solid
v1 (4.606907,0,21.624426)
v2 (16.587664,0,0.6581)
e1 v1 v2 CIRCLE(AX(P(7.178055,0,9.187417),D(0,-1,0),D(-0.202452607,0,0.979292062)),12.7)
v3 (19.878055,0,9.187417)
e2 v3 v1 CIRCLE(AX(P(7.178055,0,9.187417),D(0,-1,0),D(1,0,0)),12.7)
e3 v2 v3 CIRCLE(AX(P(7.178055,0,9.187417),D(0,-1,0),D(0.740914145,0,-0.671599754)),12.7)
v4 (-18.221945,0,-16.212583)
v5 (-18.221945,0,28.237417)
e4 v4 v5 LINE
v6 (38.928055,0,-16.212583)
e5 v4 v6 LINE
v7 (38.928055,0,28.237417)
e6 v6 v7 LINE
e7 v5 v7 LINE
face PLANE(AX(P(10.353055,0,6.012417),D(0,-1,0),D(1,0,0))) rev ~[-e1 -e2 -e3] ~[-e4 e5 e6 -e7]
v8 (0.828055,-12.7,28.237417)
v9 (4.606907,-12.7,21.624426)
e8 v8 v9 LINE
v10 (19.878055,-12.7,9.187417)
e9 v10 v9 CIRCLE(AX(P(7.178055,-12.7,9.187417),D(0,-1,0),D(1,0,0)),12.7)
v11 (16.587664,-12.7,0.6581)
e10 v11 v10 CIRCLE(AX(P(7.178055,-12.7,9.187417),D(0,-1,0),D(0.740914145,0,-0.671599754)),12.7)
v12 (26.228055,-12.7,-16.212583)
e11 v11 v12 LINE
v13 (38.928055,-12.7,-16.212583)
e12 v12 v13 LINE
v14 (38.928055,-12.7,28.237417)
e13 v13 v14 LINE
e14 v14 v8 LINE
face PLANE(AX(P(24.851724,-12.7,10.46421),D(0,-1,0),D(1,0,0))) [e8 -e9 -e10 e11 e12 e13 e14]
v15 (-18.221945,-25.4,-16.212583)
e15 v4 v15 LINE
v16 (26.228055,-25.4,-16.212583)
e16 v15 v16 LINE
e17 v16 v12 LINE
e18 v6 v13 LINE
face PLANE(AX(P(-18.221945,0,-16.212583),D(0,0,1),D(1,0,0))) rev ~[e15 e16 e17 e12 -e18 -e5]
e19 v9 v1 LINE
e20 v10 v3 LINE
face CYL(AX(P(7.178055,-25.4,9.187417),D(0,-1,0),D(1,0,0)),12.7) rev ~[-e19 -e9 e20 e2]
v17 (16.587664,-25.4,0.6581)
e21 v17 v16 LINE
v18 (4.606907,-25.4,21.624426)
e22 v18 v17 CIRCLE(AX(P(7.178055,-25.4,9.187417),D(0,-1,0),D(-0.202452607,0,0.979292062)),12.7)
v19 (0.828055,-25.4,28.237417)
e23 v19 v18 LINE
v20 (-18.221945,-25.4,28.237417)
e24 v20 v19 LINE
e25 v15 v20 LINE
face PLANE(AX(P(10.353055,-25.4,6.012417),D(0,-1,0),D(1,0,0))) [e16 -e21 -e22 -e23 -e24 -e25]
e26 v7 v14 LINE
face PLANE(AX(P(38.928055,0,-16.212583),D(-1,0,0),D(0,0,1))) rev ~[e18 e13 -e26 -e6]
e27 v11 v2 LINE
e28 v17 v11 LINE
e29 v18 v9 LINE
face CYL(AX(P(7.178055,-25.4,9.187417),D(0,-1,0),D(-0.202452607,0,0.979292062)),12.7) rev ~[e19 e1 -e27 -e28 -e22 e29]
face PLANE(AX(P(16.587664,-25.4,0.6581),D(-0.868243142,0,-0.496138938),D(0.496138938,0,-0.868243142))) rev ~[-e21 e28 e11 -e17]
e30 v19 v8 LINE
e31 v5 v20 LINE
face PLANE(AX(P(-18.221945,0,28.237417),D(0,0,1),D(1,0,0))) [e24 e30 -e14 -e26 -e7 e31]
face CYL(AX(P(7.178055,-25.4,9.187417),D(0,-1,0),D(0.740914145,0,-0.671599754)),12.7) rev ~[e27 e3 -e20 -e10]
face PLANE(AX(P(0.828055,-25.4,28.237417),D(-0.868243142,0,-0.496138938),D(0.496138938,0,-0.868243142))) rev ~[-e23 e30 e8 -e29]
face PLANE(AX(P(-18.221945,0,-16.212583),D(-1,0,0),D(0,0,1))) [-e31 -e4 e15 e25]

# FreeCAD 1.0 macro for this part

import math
import FreeCAD as App
import Part
import Sketcher

V = App.Vector
Q = App.Units.Quantity

doc = App.newDocument("Part")
body = doc.addObject("PartDesign::Body", "Body")

# Sketch on XZ plane
sketch1 = body.newObject("Sketcher::SketchObject", "Sketch")
sketch1.AttachmentSupport = (doc.getObject("XZ_Plane"), [""])
sketch1.MapMode = "FlatFace"
sketch1.addGeometry([
    Part.LineSegment(V(-18, 28, 0), V(-18, -16, 0)),
    Part.LineSegment(V(-18, -16, 0), V(39, -16, 0)),
    Part.LineSegment(V(39, -16, 0), V(39, 28, 0)),
    Part.LineSegment(V(39, 28, 0), V(-18, 28, 0)),
], False)
sketch1.addConstraint([
    Sketcher.Constraint("Coincident", 0, 2, 1, 1),
    Sketcher.Constraint("Coincident", 1, 2, 2, 1),
    Sketcher.Constraint("Coincident", 2, 2, 3, 1),
    Sketcher.Constraint("Coincident", 3, 2, 0, 1),
    Sketcher.Constraint("Vertical", 0),
    Sketcher.Constraint("Horizontal", 1),
    Sketcher.Constraint("Vertical", 2),
    Sketcher.Constraint("Horizontal", 3),
    Sketcher.Constraint("DistanceX", 1, 1, 1, 2, Q("2.25 in")),
    Sketcher.Constraint("DistanceY", 0, 2, 0, 1, Q("1.75 in")),
    Sketcher.Constraint("DistanceX", 0, 2, -1, 1, 18.221945),
    Sketcher.Constraint("DistanceY", 0, 2, -1, 1, 16.212583),
])
pad1 = body.newObject("PartDesign::Pad", "Pad")
pad1.Profile = sketch1
pad1.Length = Q("1 in")

# Sketch on XZ plane
sketch2 = body.newObject("Sketcher::SketchObject", "Sketch001")
sketch2.AttachmentSupport = (doc.getObject("XZ_Plane"), [""])
sketch2.MapMode = "FlatFace"
sketch2.AttachmentOffset = App.Placement(V(0, 0, 1 * 25.4), App.Rotation())
sketch2.addGeometry([
    Part.ArcOfCircle(Part.Circle(V(7, 9, 0), V(0, 0, 1), 13), math.radians(102), math.radians(318)),
    Part.ArcOfCircle(Part.Circle(V(7, 9, 0), V(0, 0, 1), 13), math.radians(-42), math.radians(0)),
    Part.ArcOfCircle(Part.Circle(V(7, 9, 0), V(0, 0, 1), 13), math.radians(0), math.radians(102)),
], False)
sketch2.addConstraint([
    Sketcher.Constraint("Tangent", 0, 2, 1, 1),
    Sketcher.Constraint("Tangent", 1, 2, 2, 1),
    Sketcher.Constraint("Tangent", 2, 2, 0, 1),
    Sketcher.Constraint("Horizontal", 2, 3, 1, 2),
    Sketcher.Constraint("Radius", 0, Q("0.5 in")),
    Sketcher.Constraint("DistanceY", 0, 2, 0, 3, Q("0.3357999 in")),
    Sketcher.Constraint("DistanceY", -1, 1, 0, 2, 0.6581),
    Sketcher.Constraint("DistanceX", 2, 2, 1, 3, 2.571148),
    Sketcher.Constraint("DistanceX", -1, 1, 0, 3, 7.178055),
])
pocket1 = body.newObject("PartDesign::Pocket", "Pocket")
pocket1.Profile = sketch2
pocket1.Length = Q("1 in")

# Sketch on XZ plane
sketch3 = body.newObject("Sketcher::SketchObject", "Sketch002")
sketch3.AttachmentSupport = (doc.getObject("XZ_Plane"), [""])
sketch3.MapMode = "FlatFace"
sketch3.AttachmentOffset = App.Placement(V(0, 0, 1 * 25.4), App.Rotation())
sketch3.addGeometry([
    Part.LineSegment(V(39, 28, 0), V(1, 28, 0)),  # 0
    Part.LineSegment(V(1, 28, 0), V(5, 22, 0)),  # 1
    Part.ArcOfCircle(Part.Circle(V(7, 9, 0), V(0, 0, 1), 13), math.radians(102), math.radians(318)),  # 2
    Part.LineSegment(V(17, 1, 0), V(26, -16, 0)),  # 3
    Part.LineSegment(V(26, -16, 0), V(39, -16, 0)),  # 4
    Part.LineSegment(V(39, -16, 0), V(39, 28, 0)),  # 5
], False)
sketch3.addConstraint([
    Sketcher.Constraint("Coincident", 0, 2, 1, 1),
    Sketcher.Constraint("Coincident", 1, 2, 2, 1),
    Sketcher.Constraint("Coincident", 2, 2, 3, 1),
    Sketcher.Constraint("Coincident", 3, 2, 4, 1),
    Sketcher.Constraint("Coincident", 4, 2, 5, 1),
    Sketcher.Constraint("Coincident", 5, 2, 0, 1),
    Sketcher.Constraint("Horizontal", 0),
    Sketcher.Constraint("Horizontal", 4),
    Sketcher.Constraint("Vertical", 5),
    Sketcher.Constraint("Parallel", 1, 3),
    Sketcher.Constraint("Radius", 2, Q("0.5 in")),
    Sketcher.Constraint("DistanceX", 0, 2, 0, 1, Q("1.5 in")),
    Sketcher.Constraint("DistanceX", 4, 1, 4, 2, Q("0.5 in")),
    Sketcher.Constraint("DistanceY", 3, 2, 2, 3, Q("1 in")),
    Sketcher.Constraint("DistanceY", 5, 1, 5, 2, Q("1.75 in")),
    Sketcher.Constraint("DistanceX", 0, 2, 2, 3, Q("0.25 in")),
    Sketcher.Constraint("DistanceY", 2, 2, 2, 3, Q("0.3357999 in")),
    Sketcher.Constraint("DistanceY", -1, 1, 2, 2, 0.6581),
    Sketcher.Constraint("DistanceX", -1, 1, 2, 3, 7.178055),
])
pocket2 = body.newObject("PartDesign::Pocket", "Pocket001")
pocket2.Profile = sketch3
pocket2.Length = Q("0.5 in")

doc.recompute()
